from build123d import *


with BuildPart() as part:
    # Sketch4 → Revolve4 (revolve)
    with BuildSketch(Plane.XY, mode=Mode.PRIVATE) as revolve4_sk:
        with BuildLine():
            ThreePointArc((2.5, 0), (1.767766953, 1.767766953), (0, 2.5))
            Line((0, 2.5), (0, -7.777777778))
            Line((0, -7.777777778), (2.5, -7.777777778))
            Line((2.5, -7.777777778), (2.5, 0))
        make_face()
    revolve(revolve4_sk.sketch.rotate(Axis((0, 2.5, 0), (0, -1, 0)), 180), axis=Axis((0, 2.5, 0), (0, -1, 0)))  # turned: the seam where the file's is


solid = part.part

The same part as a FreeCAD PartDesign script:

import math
import FreeCAD as App
import Part
import Sketcher
from FreeCAD import Vector

doc = App.newDocument("Part")
body = doc.addObject("PartDesign::Body", "Body")

sketch1 = body.newObject("Sketcher::SketchObject", "Sketch")
sketch1.AttachmentSupport = (doc.getObject("XY_Plane"), [""])
sketch1.MapMode = "FlatFace"
sketch1.addGeometry([
    Part.ArcOfCircle(Part.Circle(Vector(0, 0, 0), Vector(0, 0, 1), 2.5), math.radians(0), math.radians(90)),
    Part.LineSegment(Vector(0, 2.5, 0), Vector(0, -7.777778, 0)),
    Part.LineSegment(Vector(0, -7.777778, 0), Vector(2.5, -7.777778, 0)),
    Part.LineSegment(Vector(2.5, -7.777778, 0), Vector(2.5, 0, 0)),
], False)
sketch1.addConstraint([
    Sketcher.Constraint("Coincident", 0, 2, 1, 1),
    Sketcher.Constraint("Coincident", 1, 2, 2, 1),
    Sketcher.Constraint("Coincident", 2, 2, 3, 1),
    Sketcher.Constraint("Tangent", 3, 2, 0, 1),
    Sketcher.Constraint("Vertical", 1),
    Sketcher.Constraint("Horizontal", 2),
    Sketcher.Constraint("Vertical", 3),
    Sketcher.Constraint("Coincident", 0, 3, -1, 1),
    Sketcher.Constraint("PointOnObject", 0, 2, -2),
    Sketcher.Constraint("Radius", 0, 2.5),
    Sketcher.Constraint("DistanceY", 1, 2, 1, 1, 10.277778),
])
revolution = body.newObject("PartDesign::Revolution", "Revolution")
revolution.Profile = sketch1
revolution.ReferenceAxis = (sketch1, ["V_Axis"])
revolution.Angle = 360

doc.recompute()
